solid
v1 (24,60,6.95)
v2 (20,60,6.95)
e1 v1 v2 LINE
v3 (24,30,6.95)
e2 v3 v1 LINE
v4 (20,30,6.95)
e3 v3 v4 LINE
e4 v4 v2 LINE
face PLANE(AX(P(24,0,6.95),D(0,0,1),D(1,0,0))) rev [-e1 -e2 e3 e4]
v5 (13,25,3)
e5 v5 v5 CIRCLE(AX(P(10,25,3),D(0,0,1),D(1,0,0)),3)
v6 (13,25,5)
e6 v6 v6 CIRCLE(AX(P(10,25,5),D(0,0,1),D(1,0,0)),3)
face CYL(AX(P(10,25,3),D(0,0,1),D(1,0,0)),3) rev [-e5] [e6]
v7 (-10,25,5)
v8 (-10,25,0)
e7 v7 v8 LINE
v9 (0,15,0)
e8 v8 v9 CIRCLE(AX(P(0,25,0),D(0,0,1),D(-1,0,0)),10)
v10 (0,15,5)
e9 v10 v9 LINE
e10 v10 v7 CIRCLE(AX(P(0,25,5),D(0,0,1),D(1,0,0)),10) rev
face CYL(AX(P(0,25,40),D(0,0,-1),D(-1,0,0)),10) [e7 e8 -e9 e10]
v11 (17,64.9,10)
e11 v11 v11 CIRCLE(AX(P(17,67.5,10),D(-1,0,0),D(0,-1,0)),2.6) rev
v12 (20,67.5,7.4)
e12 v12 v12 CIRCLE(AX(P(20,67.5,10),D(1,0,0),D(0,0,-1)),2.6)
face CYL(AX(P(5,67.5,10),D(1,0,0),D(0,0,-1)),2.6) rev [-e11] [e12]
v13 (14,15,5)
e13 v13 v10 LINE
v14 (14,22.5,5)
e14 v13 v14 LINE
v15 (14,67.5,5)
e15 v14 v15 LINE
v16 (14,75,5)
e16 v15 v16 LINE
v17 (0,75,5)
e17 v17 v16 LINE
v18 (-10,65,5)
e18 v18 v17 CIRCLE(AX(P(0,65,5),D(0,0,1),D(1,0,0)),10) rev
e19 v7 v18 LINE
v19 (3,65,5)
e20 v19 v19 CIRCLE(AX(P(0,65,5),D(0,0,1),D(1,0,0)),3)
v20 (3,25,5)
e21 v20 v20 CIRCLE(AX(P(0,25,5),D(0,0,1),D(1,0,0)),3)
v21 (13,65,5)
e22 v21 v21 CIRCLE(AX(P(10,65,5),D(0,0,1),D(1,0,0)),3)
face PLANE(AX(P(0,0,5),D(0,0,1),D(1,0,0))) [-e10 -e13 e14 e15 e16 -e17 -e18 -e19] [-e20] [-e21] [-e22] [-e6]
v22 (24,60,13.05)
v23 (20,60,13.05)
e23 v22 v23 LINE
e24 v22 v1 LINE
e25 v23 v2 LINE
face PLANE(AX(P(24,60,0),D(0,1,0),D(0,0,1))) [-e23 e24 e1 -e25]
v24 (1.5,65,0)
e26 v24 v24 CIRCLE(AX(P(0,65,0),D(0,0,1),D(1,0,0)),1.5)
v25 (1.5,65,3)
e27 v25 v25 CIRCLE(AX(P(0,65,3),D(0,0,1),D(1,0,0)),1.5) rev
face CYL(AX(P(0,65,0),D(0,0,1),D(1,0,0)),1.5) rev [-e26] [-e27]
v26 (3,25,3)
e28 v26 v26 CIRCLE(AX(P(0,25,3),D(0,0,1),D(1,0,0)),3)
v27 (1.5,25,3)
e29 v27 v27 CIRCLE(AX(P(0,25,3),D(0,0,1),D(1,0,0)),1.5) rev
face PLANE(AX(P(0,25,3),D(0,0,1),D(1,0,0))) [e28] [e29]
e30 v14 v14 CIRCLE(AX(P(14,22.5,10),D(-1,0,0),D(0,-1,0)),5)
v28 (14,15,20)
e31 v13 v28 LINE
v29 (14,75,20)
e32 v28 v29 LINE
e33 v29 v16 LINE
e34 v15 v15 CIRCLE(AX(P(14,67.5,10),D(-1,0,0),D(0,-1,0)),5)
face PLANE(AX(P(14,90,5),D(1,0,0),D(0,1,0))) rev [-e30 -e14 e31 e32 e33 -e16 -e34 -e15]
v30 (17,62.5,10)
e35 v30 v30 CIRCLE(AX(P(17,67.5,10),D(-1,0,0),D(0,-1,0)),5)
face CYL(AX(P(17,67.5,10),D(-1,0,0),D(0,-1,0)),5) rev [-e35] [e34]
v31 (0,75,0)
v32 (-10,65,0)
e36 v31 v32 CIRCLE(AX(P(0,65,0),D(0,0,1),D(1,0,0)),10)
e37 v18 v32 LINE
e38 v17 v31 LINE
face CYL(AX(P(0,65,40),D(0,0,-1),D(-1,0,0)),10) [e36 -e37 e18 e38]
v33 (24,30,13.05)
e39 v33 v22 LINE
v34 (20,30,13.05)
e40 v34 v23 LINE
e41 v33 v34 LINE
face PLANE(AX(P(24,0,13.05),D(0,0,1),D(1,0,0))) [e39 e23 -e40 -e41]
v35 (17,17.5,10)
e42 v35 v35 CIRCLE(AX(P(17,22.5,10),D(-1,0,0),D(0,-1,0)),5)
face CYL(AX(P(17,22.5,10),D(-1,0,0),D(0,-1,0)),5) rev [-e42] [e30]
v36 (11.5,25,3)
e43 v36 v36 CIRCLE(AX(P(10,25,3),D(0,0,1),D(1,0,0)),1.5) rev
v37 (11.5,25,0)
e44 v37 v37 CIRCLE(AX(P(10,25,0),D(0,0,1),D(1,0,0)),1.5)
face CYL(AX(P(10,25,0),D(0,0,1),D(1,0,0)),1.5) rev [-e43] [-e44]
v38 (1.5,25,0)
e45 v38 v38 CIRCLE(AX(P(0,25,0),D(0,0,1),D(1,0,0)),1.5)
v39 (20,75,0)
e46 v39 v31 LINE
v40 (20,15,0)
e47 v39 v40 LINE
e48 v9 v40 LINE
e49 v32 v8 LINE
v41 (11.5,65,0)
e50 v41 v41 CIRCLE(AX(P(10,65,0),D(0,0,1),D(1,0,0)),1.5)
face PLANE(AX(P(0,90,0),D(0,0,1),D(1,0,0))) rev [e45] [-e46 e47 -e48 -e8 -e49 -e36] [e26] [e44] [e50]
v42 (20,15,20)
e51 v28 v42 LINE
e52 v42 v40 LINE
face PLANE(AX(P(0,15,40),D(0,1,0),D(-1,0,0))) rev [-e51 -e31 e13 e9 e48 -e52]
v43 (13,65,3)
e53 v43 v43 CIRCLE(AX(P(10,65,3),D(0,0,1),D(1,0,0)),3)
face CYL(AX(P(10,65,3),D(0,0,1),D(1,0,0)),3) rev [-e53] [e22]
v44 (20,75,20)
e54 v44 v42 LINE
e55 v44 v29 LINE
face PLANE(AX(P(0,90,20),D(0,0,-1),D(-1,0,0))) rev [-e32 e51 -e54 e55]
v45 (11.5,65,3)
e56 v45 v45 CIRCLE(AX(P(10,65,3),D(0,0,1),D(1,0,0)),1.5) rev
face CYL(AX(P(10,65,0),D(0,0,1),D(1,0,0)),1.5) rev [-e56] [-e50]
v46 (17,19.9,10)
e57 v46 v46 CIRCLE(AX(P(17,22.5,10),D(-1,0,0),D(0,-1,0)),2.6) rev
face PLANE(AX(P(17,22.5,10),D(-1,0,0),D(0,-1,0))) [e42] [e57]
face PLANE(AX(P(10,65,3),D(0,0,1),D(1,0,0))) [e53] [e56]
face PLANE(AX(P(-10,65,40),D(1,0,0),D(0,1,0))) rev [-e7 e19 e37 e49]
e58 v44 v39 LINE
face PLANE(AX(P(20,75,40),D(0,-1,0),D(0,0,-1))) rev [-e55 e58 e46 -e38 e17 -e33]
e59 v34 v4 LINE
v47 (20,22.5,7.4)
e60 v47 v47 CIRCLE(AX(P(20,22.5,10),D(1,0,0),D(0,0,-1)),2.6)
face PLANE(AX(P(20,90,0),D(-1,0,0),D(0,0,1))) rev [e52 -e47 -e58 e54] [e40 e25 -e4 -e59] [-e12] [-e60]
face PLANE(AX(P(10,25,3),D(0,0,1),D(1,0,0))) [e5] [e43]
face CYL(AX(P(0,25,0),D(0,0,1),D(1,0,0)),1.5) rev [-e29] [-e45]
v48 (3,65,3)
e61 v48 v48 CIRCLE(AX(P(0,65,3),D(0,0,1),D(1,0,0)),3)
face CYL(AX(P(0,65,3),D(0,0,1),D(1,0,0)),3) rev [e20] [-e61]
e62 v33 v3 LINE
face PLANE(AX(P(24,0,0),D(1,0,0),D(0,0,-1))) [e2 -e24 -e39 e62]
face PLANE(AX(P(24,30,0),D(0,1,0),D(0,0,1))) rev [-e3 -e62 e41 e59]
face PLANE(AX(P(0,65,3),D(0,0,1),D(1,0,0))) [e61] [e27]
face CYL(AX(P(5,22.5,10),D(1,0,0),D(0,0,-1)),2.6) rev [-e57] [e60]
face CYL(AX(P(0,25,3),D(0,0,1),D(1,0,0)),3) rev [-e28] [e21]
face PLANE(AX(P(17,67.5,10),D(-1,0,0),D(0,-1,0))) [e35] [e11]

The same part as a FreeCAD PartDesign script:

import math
import FreeCAD as App
import Part
import Sketcher

V = App.Vector
Q = App.Units.Quantity


def add_polygon(sketch, points):
    """Adds a closed chain of lines whose ends are joined by coincident constraints."""
    first, n = sketch.GeometryCount, len(points)
    for a, b in zip(points, points[1:] + points[:1]):
        sketch.addGeometry(Part.LineSegment(App.Vector(*a, 0), App.Vector(*b, 0)), False)
    for i in range(n):
        sketch.addConstraint(Sketcher.Constraint("Coincident", first + i, 2, first + (i + 1) % n, 1))

doc = App.newDocument("Part")
body = doc.addObject("PartDesign::Body", "Body")

sketch1 = doc.addObject("Sketcher::SketchObject", "Sketch")
body.addObject(sketch1)
sketch1.AttachmentSupport = (doc.XZ_Plane, [""])
sketch1.MapMode = "FlatFace"
add_polygon(sketch1, [(0, 0), (0, 20), (20, 20), (20, 0)])
sketch1.addConstraint([
    Sketcher.Constraint("Vertical", 0),
    Sketcher.Constraint("Horizontal", 1),
    Sketcher.Constraint("Vertical", 2),
    Sketcher.Constraint("Horizontal", 3),
    Sketcher.Constraint("Coincident", 3, 2, -1, 1),
    Sketcher.Constraint("Equal", 3, 0),
    Sketcher.Constraint("DistanceX", 1, 1, 1, 2, Q("20 mm")),
])
pad1 = doc.addObject("PartDesign::Pad", "Pad")
body.addObject(pad1)
pad1.Profile = sketch1
pad1.Length = 90
pad1.Reversed = True

sketch2 = doc.addObject("Sketcher::SketchObject", "Sketch001")
body.addObject(sketch2)
sketch2.AttachmentSupport = (doc.XY_Plane, [""])
sketch2.MapMode = "FlatFace"
add_polygon(sketch2, [(0, 90), (0, 0), (-20, 0), (-20, 90)])
sketch2.addConstraint([
    Sketcher.Constraint("Vertical", 0),
    Sketcher.Constraint("Horizontal", 1),
    Sketcher.Constraint("Vertical", 2),
    Sketcher.Constraint("Horizontal", 3),
    Sketcher.Constraint("Coincident", 0, 2, -1, 1),
    Sketcher.Constraint("DistanceX", 1, 2, 1, 1, Q("20 mm")),
    Sketcher.Constraint("DistanceY", 0, 2, 0, 1, Q("90 mm")),
])
pad2 = doc.addObject("PartDesign::Pad", "Pad001")
body.addObject(pad2)
pad2.Profile = sketch2
pad2.Length = 20

sketch3 = doc.addObject("Sketcher::SketchObject", "Sketch002")
body.addObject(sketch3)
sketch3.AttachmentSupport = (doc.XY_Plane, [""])
sketch3.MapMode = "FlatFace"
sketch3.AttachmentOffset = App.Placement(V(0, 0, 20), App.Rotation())
add_polygon(sketch3, [(-20, 90), (-20, 0), (14, 0), (14, 90)])
sketch3.addConstraint([
    Sketcher.Constraint("Vertical", 0),
    Sketcher.Constraint("Horizontal", 1),
    Sketcher.Constraint("Vertical", 2),
    Sketcher.Constraint("Horizontal", 3),
    Sketcher.Constraint("PointOnObject", 0, 2, -1),
    Sketcher.Constraint("DistanceX", 1, 1, 1, 2, Q("34 mm")),
    Sketcher.Constraint("DistanceY", 0, 2, 0, 1, Q("90 mm")),
    Sketcher.Constraint("DistanceX", 0, 2, -1, 1, Q("20 mm")),
])
pocket1 = doc.addObject("PartDesign::Pocket", "Pocket")
body.addObject(pocket1)
pocket1.Profile = sketch3
pocket1.Length = 15

sketch4 = doc.addObject("Sketcher::SketchObject", "Sketch003")
body.addObject(sketch4)
sketch4.AttachmentSupport = (doc.YZ_Plane, [""])
sketch4.MapMode = "FlatFace"
sketch4.AttachmentOffset = App.Placement(V(0, 0, 20), App.Rotation())
sketch4.addGeometry([
    Part.ArcOfCircle(Part.Circle(V(67.5, 10, 0), V(0, 0, 1), 2.6), math.radians(0), math.radians(180)),
    Part.ArcOfCircle(Part.Circle(V(67.5, 10, 0), V(0, 0, 1), 2.6), math.radians(180), math.radians(270)),
    Part.ArcOfCircle(Part.Circle(V(67.5, 10, 0), V(0, 0, 1), 2.6), math.radians(-90), math.radians(0)),
    Part.ArcOfCircle(Part.Circle(V(22.5, 10, 0), V(0, 0, 1), 2.6), math.radians(-90), math.radians(0)),
    Part.ArcOfCircle(Part.Circle(V(22.5, 10, 0), V(0, 0, 1), 2.6), math.radians(0), math.radians(180)),
    Part.ArcOfCircle(Part.Circle(V(22.5, 10, 0), V(0, 0, 1), 2.6), math.radians(180), math.radians(270)),
], False)
sketch4.addConstraint([
    Sketcher.Constraint("Tangent", 0, 2, 1, 1),
    Sketcher.Constraint("Tangent", 1, 2, 2, 1),
    Sketcher.Constraint("Tangent", 2, 2, 0, 1),
    Sketcher.Constraint("Tangent", 3, 2, 4, 1),
    Sketcher.Constraint("Tangent", 4, 2, 5, 1),
    Sketcher.Constraint("Tangent", 5, 2, 3, 1),
    Sketcher.Constraint("Equal", 2, 3),
    Sketcher.Constraint("Horizontal", 2, 3, 3, 3),
    Sketcher.Constraint("Horizontal", 5, 3, 0, 2),
    Sketcher.Constraint("Horizontal", 0, 2, 2, 2),
    Sketcher.Constraint("Horizontal", 2, 2, 3, 2),
    Sketcher.Constraint("Horizontal", 3, 2, 4, 2),
    Sketcher.Constraint("Vertical", 2, 3, 1, 2),
    Sketcher.Constraint("Vertical", 4, 3, 5, 2),
    Sketcher.Constraint("Radius", 0, Q("2.6 mm")),
    Sketcher.Constraint("DistanceY", -1, 1, 0, 3, Q("10 mm")),
    Sketcher.Constraint("DistanceX", 3, 3, 0, 3, Q("45 mm")),
    Sketcher.Constraint("DistanceX", -1, 1, 0, 3, Q("67.5 mm")),
])
pocket2 = doc.addObject("PartDesign::Pocket", "Pocket001")
body.addObject(pocket2)
pocket2.Profile = sketch4
pocket2.Length = 15

sketch5 = doc.addObject("Sketcher::SketchObject", "Sketch004")
body.addObject(sketch5)
sketch5.AttachmentSupport = (doc.YZ_Plane, [""])
sketch5.MapMode = "FlatFace"
sketch5.AttachmentOffset = App.Placement(V(0, 0, 14), App.Rotation())
sketch5.addGeometry([
    Part.Circle(V(68, 10, 0), V(0, 0, 1), 5),
    Part.Circle(V(22, 10, 0), V(0, 0, 1), 5),
], False)
sketch5.addConstraint([
    Sketcher.Constraint("Equal", 0, 1),
    Sketcher.Constraint("Horizontal", 0, 3, 1, 3),
    Sketcher.Constraint("Diameter", 0, Q("10 mm")),
    Sketcher.Constraint("DistanceY", -1, 1, 0, 3, Q("10 mm")),
    Sketcher.Constraint("DistanceX", 1, 3, 0, 3, Q("45 mm")),
    Sketcher.Constraint("DistanceX", -1, 1, 0, 3, Q("67.5 mm")),
])
pocket3 = doc.addObject("PartDesign::Pocket", "Pocket002")
body.addObject(pocket3)
pocket3.Profile = sketch5
pocket3.Length = 3
pocket3.Reversed = True

sketch6 = doc.addObject("Sketcher::SketchObject", "Sketch005")
body.addObject(sketch6)
sketch6.AttachmentSupport = (doc.XY_Plane, [""])
sketch6.MapMode = "FlatFace"
sketch6.AttachmentOffset = App.Placement(V(0, 0, 5), App.Rotation())
sketch6.addGeometry([
    Part.Circle(V(10, 65, 0), V(0, 0, 1), 1.5),
    Part.Circle(V(10, 25, 0), V(0, 0, 1), 1.5),
    Part.Circle(V(0, 65, 0), V(0, 0, 1), 1.5),
    Part.Circle(V(0, 25, 0), V(0, 0, 1), 1.5),
], False)
sketch6.addConstraint([
    Sketcher.Constraint("Equal", 0, 1),
    Sketcher.Constraint("Equal", 1, 2),
    Sketcher.Constraint("Equal", 2, 3),
    Sketcher.Constraint("PointOnObject", 2, 3, -2),
    Sketcher.Constraint("PointOnObject", 3, 3, -2),
    Sketcher.Constraint("Horizontal", 0, 3, 2, 3),
    Sketcher.Constraint("Horizontal", 1, 3, 3, 3),
    Sketcher.Constraint("Vertical", 0, 3, 1, 3),
    Sketcher.Constraint("Diameter", 0, Q("3 mm")),
    Sketcher.Constraint("DistanceX", -1, 1, 0, 3, Q("10 mm")),
    Sketcher.Constraint("DistanceY", -1, 1, 0, 3, Q("65 mm")),
    Sketcher.Constraint("DistanceY", -1, 1, 1, 3, Q("25 mm")),
])
pocket4 = doc.addObject("PartDesign::Pocket", "Pocket003")
body.addObject(pocket4)
pocket4.Profile = sketch6
pocket4.Length = 5

sketch7 = doc.addObject("Sketcher::SketchObject", "Sketch006")
body.addObject(sketch7)
sketch7.AttachmentSupport = (doc.XY_Plane, [""])
sketch7.MapMode = "FlatFace"
sketch7.addGeometry([
    Part.LineSegment(V(0, 15, 0), V(20, 15, 0)),
    Part.LineSegment(V(20, 15, 0), V(20, 0, 0)),
    Part.LineSegment(V(20, 0, 0), V(-20, 0, 0)),
    Part.LineSegment(V(-20, 0, 0), V(-20, 90, 0)),
    Part.LineSegment(V(-20, 90, 0), V(20, 90, 0)),
    Part.LineSegment(V(20, 90, 0), V(20, 75, 0)),
    Part.LineSegment(V(20, 75, 0), V(0, 75, 0)),
    Part.ArcOfCircle(Part.Circle(V(0, 65, 0), V(0, 0, 1), 10), math.radians(90), math.radians(180)),
    Part.LineSegment(V(-10, 65, 0), V(-10, 25, 0)),
    Part.ArcOfCircle(Part.Circle(V(0, 25, 0), V(0, 0, 1), 10), math.radians(180), math.radians(270)),
], False)
sketch7.addConstraint([
    Sketcher.Constraint("Coincident", 0, 2, 1, 1),
    Sketcher.Constraint("Coincident", 1, 2, 2, 1),
    Sketcher.Constraint("Coincident", 2, 2, 3, 1),
    Sketcher.Constraint("Coincident", 3, 2, 4, 1),
    Sketcher.Constraint("Coincident", 4, 2, 5, 1),
    Sketcher.Constraint("Coincident", 5, 2, 6, 1),
    Sketcher.Constraint("Tangent", 6, 2, 7, 1),
    Sketcher.Constraint("Tangent", 7, 2, 8, 1),
    Sketcher.Constraint("Tangent", 8, 2, 9, 1),
    Sketcher.Constraint("Tangent", 9, 2, 0, 1),
    Sketcher.Constraint("Horizontal", 0),
    Sketcher.Constraint("Vertical", 1),
    Sketcher.Constraint("Horizontal", 2),
    Sketcher.Constraint("Vertical", 3),
    Sketcher.Constraint("Horizontal", 4),
    Sketcher.Constraint("Vertical", 5),
    Sketcher.Constraint("Horizontal", 6),
    Sketcher.Constraint("Vertical", 8),
    Sketcher.Constraint("Equal", 7, 9),
    Sketcher.Constraint("Symmetric", 1, 2, 2, 2, -1, 1),
    Sketcher.Constraint("PointOnObject", 7, 3, -2),
    Sketcher.Constraint("Vertical", 1, 2, 4, 2),
    Sketcher.Constraint("Equal", 1, 5),
    Sketcher.Constraint("Equal", 4, 8),
    Sketcher.Constraint("Radius", 7, Q("10 mm")),
    Sketcher.Constraint("DistanceX", 0, 1, 0, 2, Q("20 mm")),
    Sketcher.Constraint("DistanceY", 1, 2, 1, 1, Q("15 mm")),
])
pocket5 = doc.addObject("PartDesign::Pocket", "Pocket004")
body.addObject(pocket5)
pocket5.Profile = sketch7
pocket5.Length = 40
pocket5.Reversed = True

sketch8 = doc.addObject("Sketcher::SketchObject", "Sketch007")
body.addObject(sketch8)
sketch8.AttachmentSupport = (doc.YZ_Plane, [""])
sketch8.MapMode = "FlatFace"
sketch8.AttachmentOffset = App.Placement(V(0, 0, 20), App.Rotation())
add_polygon(sketch8, [(60, 7), (60, 13), (30, 13), (30, 7)])
sketch8.addConstraint([
    Sketcher.Constraint("Vertical", 0),
    Sketcher.Constraint("Horizontal", 1),
    Sketcher.Constraint("Vertical", 2),
    Sketcher.Constraint("Horizontal", 3),
    Sketcher.Constraint("DistanceX", 1, 2, 1, 1, Q("30 mm")),
    Sketcher.Constraint("DistanceY", 0, 1, 0, 2, Q("6.1 mm")),
    Sketcher.Constraint("DistanceX", -1, 1, 0, 2, Q("60 mm")),
    Sketcher.Constraint("DistanceY", -1, 1, 0, 2, Q("13.05 mm")),
])
pad3 = doc.addObject("PartDesign::Pad", "Pad002")
body.addObject(pad3)
pad3.Profile = sketch8
pad3.Length = 4

sketch9 = doc.addObject("Sketcher::SketchObject", "Sketch008")
body.addObject(sketch9)
sketch9.AttachmentSupport = (doc.XY_Plane, [""])
sketch9.MapMode = "FlatFace"
sketch9.AttachmentOffset = App.Placement(V(0, 0, 5), App.Rotation())
sketch9.addGeometry([
    Part.Circle(V(0, 65, 0), V(0, 0, 1), 3),
    Part.Circle(V(10, 65, 0), V(0, 0, 1), 3),
    Part.Circle(V(0, 25, 0), V(0, 0, 1), 3),
    Part.Circle(V(10, 25, 0), V(0, 0, 1), 3),
], False)
sketch9.addConstraint([
    Sketcher.Constraint("Equal", 0, 1),
    Sketcher.Constraint("Equal", 1, 2),
    Sketcher.Constraint("Equal", 2, 3),
    Sketcher.Constraint("PointOnObject", 0, 3, -2),
    Sketcher.Constraint("PointOnObject", 2, 3, -2),
    Sketcher.Constraint("Horizontal", 0, 3, 1, 3),
    Sketcher.Constraint("Horizontal", 2, 3, 3, 3),
    Sketcher.Constraint("Vertical", 1, 3, 3, 3),
    Sketcher.Constraint("Diameter", 0, Q("6 mm")),
    Sketcher.Constraint("DistanceY", -1, 1, 0, 3, Q("65 mm")),
    Sketcher.Constraint("DistanceX", -1, 1, 1, 3, Q("10 mm")),
    Sketcher.Constraint("DistanceY", -1, 1, 2, 3, Q("25 mm")),
])
pocket6 = doc.addObject("PartDesign::Pocket", "Pocket005")
body.addObject(pocket6)
pocket6.Profile = sketch9
pocket6.Length = 2

doc.recompute()
